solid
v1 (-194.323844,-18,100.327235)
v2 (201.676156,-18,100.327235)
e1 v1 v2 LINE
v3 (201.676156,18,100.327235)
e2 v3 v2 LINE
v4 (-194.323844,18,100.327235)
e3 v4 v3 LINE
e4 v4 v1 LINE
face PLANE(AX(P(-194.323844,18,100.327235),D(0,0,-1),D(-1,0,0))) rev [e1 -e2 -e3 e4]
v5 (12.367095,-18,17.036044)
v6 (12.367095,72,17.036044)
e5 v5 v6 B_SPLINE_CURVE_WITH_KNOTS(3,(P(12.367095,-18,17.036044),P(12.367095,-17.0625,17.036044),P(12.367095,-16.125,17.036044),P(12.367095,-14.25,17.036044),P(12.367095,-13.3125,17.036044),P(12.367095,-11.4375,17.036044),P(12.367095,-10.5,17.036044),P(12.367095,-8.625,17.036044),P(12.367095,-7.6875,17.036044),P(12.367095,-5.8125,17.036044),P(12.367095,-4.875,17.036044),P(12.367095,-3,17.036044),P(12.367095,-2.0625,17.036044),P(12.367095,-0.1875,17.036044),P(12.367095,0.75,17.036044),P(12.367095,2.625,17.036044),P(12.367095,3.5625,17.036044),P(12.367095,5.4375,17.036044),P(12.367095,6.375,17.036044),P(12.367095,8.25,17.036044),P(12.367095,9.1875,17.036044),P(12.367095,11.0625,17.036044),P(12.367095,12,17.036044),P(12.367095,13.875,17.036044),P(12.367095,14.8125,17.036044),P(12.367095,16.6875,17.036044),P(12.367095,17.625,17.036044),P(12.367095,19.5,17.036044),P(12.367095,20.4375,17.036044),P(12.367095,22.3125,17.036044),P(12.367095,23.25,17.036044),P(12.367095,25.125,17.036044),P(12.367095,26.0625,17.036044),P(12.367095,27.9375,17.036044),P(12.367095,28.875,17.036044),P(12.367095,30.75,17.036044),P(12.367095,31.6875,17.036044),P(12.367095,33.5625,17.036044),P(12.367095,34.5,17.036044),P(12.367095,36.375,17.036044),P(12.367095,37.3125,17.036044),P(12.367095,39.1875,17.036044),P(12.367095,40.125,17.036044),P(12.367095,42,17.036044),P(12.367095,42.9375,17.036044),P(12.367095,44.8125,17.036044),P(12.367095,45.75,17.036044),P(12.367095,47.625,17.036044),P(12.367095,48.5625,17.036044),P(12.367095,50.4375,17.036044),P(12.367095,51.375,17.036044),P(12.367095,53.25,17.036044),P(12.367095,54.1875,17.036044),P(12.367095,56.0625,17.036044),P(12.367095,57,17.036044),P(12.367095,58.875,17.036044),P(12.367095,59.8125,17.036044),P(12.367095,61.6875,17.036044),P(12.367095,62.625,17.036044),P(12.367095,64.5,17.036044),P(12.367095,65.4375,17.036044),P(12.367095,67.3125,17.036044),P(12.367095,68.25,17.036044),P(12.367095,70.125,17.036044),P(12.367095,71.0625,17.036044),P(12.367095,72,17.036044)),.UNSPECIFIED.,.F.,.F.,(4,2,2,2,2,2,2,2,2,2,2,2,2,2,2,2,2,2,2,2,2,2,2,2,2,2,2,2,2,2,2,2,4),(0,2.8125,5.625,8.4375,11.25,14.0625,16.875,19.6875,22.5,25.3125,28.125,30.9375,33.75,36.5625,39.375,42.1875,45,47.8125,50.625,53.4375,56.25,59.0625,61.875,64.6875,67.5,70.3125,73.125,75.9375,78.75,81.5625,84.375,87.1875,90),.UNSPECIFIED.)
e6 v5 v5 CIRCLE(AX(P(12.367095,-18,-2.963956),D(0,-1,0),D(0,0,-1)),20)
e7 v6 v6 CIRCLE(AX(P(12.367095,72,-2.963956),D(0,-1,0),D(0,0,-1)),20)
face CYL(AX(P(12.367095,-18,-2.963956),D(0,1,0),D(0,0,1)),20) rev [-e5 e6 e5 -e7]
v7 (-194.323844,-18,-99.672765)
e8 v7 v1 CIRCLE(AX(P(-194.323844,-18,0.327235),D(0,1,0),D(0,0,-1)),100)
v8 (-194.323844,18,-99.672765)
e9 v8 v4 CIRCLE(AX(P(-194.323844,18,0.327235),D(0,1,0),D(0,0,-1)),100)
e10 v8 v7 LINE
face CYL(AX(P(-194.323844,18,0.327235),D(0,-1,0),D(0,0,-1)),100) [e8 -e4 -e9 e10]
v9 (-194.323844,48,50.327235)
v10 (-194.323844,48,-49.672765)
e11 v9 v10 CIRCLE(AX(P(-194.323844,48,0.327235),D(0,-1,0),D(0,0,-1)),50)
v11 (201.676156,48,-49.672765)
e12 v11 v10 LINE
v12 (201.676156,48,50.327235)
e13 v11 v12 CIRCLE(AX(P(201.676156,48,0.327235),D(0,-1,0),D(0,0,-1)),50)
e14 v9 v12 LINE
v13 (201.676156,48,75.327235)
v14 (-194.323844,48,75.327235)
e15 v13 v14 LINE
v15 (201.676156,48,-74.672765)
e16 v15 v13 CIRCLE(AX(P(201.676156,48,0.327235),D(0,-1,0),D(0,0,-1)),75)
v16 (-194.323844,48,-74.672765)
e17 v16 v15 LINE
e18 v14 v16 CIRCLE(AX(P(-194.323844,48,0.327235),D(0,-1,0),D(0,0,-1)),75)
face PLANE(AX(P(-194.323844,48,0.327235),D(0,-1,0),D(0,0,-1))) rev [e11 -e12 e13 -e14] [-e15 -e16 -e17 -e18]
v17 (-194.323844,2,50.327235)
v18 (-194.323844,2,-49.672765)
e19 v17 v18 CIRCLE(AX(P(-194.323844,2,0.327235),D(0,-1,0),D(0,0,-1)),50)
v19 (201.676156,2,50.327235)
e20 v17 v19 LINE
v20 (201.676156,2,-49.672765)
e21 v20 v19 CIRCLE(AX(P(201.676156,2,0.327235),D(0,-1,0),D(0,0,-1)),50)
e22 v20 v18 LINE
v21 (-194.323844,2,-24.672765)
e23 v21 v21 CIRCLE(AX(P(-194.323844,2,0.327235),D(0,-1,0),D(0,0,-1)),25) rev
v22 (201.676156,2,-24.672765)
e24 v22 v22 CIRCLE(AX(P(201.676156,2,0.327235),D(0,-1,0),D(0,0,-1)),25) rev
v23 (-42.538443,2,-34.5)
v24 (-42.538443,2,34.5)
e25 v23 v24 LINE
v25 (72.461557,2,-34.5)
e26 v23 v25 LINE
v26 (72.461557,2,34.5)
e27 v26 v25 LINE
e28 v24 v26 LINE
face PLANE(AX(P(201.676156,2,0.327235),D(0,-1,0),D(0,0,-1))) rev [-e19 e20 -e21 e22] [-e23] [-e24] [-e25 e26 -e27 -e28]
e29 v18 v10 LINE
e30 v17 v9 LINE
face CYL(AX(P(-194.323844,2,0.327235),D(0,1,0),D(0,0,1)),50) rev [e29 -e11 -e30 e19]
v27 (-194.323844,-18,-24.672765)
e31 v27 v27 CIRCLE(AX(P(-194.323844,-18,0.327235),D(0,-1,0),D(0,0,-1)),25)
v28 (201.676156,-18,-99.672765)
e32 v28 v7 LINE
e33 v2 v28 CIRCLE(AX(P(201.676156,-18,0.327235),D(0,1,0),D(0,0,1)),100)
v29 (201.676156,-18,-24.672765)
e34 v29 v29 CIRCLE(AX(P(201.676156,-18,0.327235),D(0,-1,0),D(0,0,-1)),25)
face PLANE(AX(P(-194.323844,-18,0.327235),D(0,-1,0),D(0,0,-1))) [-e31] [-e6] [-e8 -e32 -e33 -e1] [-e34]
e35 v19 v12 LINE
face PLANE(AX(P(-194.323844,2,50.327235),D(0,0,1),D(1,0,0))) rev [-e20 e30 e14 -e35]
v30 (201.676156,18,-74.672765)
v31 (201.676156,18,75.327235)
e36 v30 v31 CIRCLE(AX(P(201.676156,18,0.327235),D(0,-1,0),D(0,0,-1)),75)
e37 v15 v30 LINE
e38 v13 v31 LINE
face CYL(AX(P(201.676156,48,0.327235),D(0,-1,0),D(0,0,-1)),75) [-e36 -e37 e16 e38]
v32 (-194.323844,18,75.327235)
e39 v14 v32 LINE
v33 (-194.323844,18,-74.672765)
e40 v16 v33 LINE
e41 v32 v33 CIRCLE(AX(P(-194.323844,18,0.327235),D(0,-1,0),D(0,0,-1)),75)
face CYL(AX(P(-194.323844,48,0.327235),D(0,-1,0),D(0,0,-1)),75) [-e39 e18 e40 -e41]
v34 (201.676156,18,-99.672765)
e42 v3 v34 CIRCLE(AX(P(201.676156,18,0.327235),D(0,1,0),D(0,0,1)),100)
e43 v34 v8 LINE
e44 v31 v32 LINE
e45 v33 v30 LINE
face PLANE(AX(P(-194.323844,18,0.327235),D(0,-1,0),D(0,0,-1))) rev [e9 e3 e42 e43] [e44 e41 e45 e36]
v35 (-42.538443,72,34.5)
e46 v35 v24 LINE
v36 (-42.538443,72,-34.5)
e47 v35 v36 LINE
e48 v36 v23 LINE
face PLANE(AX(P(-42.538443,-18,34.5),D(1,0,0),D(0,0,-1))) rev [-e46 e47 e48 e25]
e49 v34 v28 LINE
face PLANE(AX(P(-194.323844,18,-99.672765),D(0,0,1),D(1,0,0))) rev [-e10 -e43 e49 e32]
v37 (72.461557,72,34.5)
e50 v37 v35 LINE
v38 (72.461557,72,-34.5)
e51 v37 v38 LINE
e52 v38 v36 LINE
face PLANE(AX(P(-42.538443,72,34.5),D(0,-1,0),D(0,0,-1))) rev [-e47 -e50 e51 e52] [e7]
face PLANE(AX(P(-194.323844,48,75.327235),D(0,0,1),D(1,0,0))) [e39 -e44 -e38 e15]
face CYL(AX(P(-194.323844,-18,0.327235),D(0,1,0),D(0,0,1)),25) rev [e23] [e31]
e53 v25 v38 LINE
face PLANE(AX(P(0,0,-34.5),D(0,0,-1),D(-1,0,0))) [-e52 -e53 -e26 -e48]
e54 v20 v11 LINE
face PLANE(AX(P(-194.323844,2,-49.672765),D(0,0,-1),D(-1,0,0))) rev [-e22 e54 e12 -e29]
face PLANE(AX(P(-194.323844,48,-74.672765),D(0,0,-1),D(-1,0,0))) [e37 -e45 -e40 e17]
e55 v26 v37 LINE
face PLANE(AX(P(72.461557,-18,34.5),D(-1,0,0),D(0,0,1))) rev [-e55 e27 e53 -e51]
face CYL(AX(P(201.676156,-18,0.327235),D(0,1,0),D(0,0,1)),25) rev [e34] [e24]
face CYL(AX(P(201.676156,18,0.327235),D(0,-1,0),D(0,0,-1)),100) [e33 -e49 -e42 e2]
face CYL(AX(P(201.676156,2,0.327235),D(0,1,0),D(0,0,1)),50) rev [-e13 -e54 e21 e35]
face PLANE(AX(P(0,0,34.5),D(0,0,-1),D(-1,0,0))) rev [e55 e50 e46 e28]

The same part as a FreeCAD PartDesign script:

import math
import FreeCAD as App
import Part
import Sketcher

V = App.Vector
Q = App.Units.Quantity


def add_polygon(sketch, points):
    """Adds a closed chain of lines whose ends are joined by coincident constraints."""
    first, n = sketch.GeometryCount, len(points)
    for a, b in zip(points, points[1:] + points[:1]):
        sketch.addGeometry(Part.LineSegment(App.Vector(*a, 0), App.Vector(*b, 0)), False)
    for i in range(n):
        sketch.addConstraint(Sketcher.Constraint("Coincident", first + i, 2, first + (i + 1) % n, 1))

doc = App.newDocument("Part")
body = doc.addObject("PartDesign::Body", "Body")

# Sketch on XZ plane
sketch1 = body.newObject("Sketcher::SketchObject", "Sketch")
sketch1.AttachmentSupport = (doc.getObject("XZ_Plane"), [""])
sketch1.MapMode = "FlatFace"
sketch1.addGeometry([
    Part.LineSegment(V(-194.323844, 100.327235, 0), V(201.676156, 100.327235, 0)),
    Part.ArcOfCircle(Part.Circle(V(201.676156, 0.327235, 0), V(0, 0, 1), 100), math.radians(-90), math.radians(90)),
    Part.LineSegment(V(201.676156, -99.672765, 0), V(-194.323844, -99.672765, 0)),
    Part.ArcOfCircle(Part.Circle(V(-194.323844, 0.327235, 0), V(0, 0, 1), 100), math.radians(90), math.radians(270)),
], False)
sketch1.addConstraint([
    Sketcher.Constraint("Tangent", 0, 2, 1, 2),
    Sketcher.Constraint("Tangent", 1, 1, 2, 1),
    Sketcher.Constraint("Tangent", 2, 2, 3, 2),
    Sketcher.Constraint("Tangent", 3, 1, 0, 1),
    Sketcher.Constraint("Horizontal", 0),
    Sketcher.Constraint("Horizontal", 2),
    Sketcher.Constraint("Radius", 1, Q("100 mm")),
    Sketcher.Constraint("DistanceX", 0, 1, 0, 2, Q("396 mm")),
    Sketcher.Constraint("DistanceX", -1, 1, 1, 3, Q("201.676156 mm")),
    Sketcher.Constraint("DistanceY", -1, 1, 1, 3, Q("0.327235 mm")),
])
pad1 = body.newObject("PartDesign::Pad", "Pad")
pad1.Profile = sketch1
pad1.Length = 36
pad1.Midplane = True

# Sketch on XZ plane
sketch2 = body.newObject("Sketcher::SketchObject", "Sketch001")
sketch2.AttachmentSupport = (doc.getObject("XZ_Plane"), [""])
sketch2.MapMode = "FlatFace"
sketch2.AttachmentOffset = App.Placement(V(0, 0, 18), App.Rotation())
sketch2.addGeometry([
    Part.LineSegment(V(-194.323844, 75.327235, 0), V(201.676156, 75.327235, 0)),
    Part.ArcOfCircle(Part.Circle(V(201.676156, 0.327235, 0), V(0, 0, 1), 75), math.radians(-90), math.radians(90)),
    Part.LineSegment(V(201.676156, -74.672765, 0), V(-194.323844, -74.672765, 0)),
    Part.ArcOfCircle(Part.Circle(V(-194.323844, 0.327235, 0), V(0, 0, 1), 75), math.radians(90), math.radians(270)),
], False)
sketch2.addConstraint([
    Sketcher.Constraint("Tangent", 0, 2, 1, 2),
    Sketcher.Constraint("Tangent", 1, 1, 2, 1),
    Sketcher.Constraint("Tangent", 2, 2, 3, 2),
    Sketcher.Constraint("Tangent", 3, 1, 0, 1),
    Sketcher.Constraint("Horizontal", 0),
    Sketcher.Constraint("Horizontal", 2),
    Sketcher.Constraint("Radius", 1, Q("75 mm")),
    Sketcher.Constraint("DistanceX", 0, 1, 0, 2, Q("396 mm")),
    Sketcher.Constraint("DistanceX", -1, 1, 1, 3, Q("201.676156 mm")),
    Sketcher.Constraint("DistanceY", -1, 1, 1, 3, Q("0.327235 mm")),
])
pad2 = body.newObject("PartDesign::Pad", "Pad001")
pad2.Profile = sketch2
pad2.Length = 66
pad2.Reversed = True

# Sketch on XZ plane
sketch3 = body.newObject("Sketcher::SketchObject", "Sketch002")
sketch3.AttachmentSupport = (doc.getObject("XZ_Plane"), [""])
sketch3.MapMode = "FlatFace"
sketch3.AttachmentOffset = App.Placement(V(0, 0, -48), App.Rotation())
sketch3.addGeometry([
    Part.LineSegment(V(-194.323844, 50.327235, 0), V(201.676156, 50.327235, 0)),
    Part.ArcOfCircle(Part.Circle(V(201.676156, 0.327235, 0), V(0, 0, 1), 50), math.radians(-90), math.radians(90)),
    Part.LineSegment(V(201.676156, -49.672765, 0), V(-194.323844, -49.672765, 0)),
    Part.ArcOfCircle(Part.Circle(V(-194.323844, 0.327235, 0), V(0, 0, 1), 50), math.radians(90), math.radians(270)),
], False)
sketch3.addConstraint([
    Sketcher.Constraint("Tangent", 0, 2, 1, 2),
    Sketcher.Constraint("Tangent", 1, 1, 2, 1),
    Sketcher.Constraint("Tangent", 2, 2, 3, 2),
    Sketcher.Constraint("Tangent", 3, 1, 0, 1),
    Sketcher.Constraint("Horizontal", 0),
    Sketcher.Constraint("Horizontal", 2),
    Sketcher.Constraint("Radius", 1, Q("50 mm")),
    Sketcher.Constraint("DistanceX", 0, 1, 0, 2, Q("396 mm")),
    Sketcher.Constraint("DistanceX", -1, 1, 1, 3, Q("201.676156 mm")),
    Sketcher.Constraint("DistanceY", -1, 1, 1, 3, Q("0.327235 mm")),
])
pocket1 = body.newObject("PartDesign::Pocket", "Pocket")
pocket1.Profile = sketch3
pocket1.Length = 46
pocket1.Reversed = True

# Sketch on XZ plane
sketch4 = body.newObject("Sketcher::SketchObject", "Sketch003")
sketch4.AttachmentSupport = (doc.getObject("XZ_Plane"), [""])
sketch4.MapMode = "FlatFace"
sketch4.AttachmentOffset = App.Placement(V(0, 0, -18), App.Rotation())
sketch4.addGeometry([
    Part.Circle(V(-194.323844, 0.327235, 0), V(0, 0, 1), 25),
    Part.Circle(V(201.676156, 0.327235, 0), V(0, 0, 1), 25),
], False)
sketch4.addConstraint([
    Sketcher.Constraint("Equal", 0, 1),
    Sketcher.Constraint("Horizontal", 0, 3, 1, 3),
    Sketcher.Constraint("Diameter", 0, Q("50 mm")),
    Sketcher.Constraint("DistanceX", 0, 3, 1, 3, Q("396 mm")),
    Sketcher.Constraint("DistanceX", 0, 3, -1, 1, Q("194.323844 mm")),
    Sketcher.Constraint("DistanceY", -1, 1, 0, 3, Q("0.327235 mm")),
])
pocket2 = body.newObject("PartDesign::Pocket", "Pocket001")
pocket2.Profile = sketch4
pocket2.Type = "ThroughAll"
pocket2.Reversed = True

# Sketch on XY plane
sketch5 = body.newObject("Sketcher::SketchObject", "Sketch004")
sketch5.AttachmentSupport = (doc.getObject("XY_Plane"), [""])
sketch5.MapMode = "FlatFace"
add_polygon(sketch5, [(-42.538443, 72), (-42.538443, -18), (72.461557, -18), (72.461557, 72)])  # lines 0-3
sketch5.addConstraint([
    Sketcher.Constraint("Vertical", 0),
    Sketcher.Constraint("Horizontal", 1),
    Sketcher.Constraint("Vertical", 2),
    Sketcher.Constraint("Horizontal", 3),
    Sketcher.Constraint("DistanceX", 1, 1, 1, 2, Q("115 mm")),
    Sketcher.Constraint("DistanceY", 0, 2, 0, 1, Q("90 mm")),
    Sketcher.Constraint("DistanceY", 0, 2, -1, 1, Q("18 mm")),
    Sketcher.Constraint("DistanceX", 0, 2, -1, 1, Q("42.538443 mm")),
])
pad3 = body.newObject("PartDesign::Pad", "Pad002")
pad3.Profile = sketch5
pad3.Length = 69
pad3.Midplane = True

# Sketch on XZ plane
sketch6 = body.newObject("Sketcher::SketchObject", "Sketch005")
sketch6.AttachmentSupport = (doc.getObject("XZ_Plane"), [""])
sketch6.MapMode = "FlatFace"
sketch6.AttachmentOffset = App.Placement(V(0, 0, -72), App.Rotation())
sketch6.addGeometry(Part.Circle(V(12.367095, -2.963956, 0), V(0, 0, 1), 20), False)
sketch6.addConstraint([
    Sketcher.Constraint("Diameter", 0, Q("40 mm")),
    Sketcher.Constraint("DistanceX", -1, 1, 0, 3, Q("12.367095 mm")),
    Sketcher.Constraint("DistanceY", 0, 3, -1, 1, Q("2.963956 mm")),
])
pocket3 = body.newObject("PartDesign::Pocket", "Pocket002")
pocket3.Profile = sketch6
pocket3.Type = "ThroughAll"
pocket3.Reversed = True

doc.recompute()
